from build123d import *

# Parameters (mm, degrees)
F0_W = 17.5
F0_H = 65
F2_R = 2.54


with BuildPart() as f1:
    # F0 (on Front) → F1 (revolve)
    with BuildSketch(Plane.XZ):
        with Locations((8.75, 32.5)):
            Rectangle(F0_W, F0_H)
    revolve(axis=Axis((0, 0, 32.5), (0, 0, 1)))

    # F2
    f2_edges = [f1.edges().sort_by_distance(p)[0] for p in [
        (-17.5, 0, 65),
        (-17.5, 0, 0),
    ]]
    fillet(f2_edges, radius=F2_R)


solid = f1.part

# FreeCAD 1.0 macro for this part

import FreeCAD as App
import Part
import Sketcher

V = App.Vector
Q = App.Units.Quantity


def edges_at(feature, points):
    """Names of the edges that pass closest to the given points."""
    edges = feature.Shape.Edges
    near = lambda p: min(range(len(edges)), key=lambda i: edges[i].distToShape(Part.Vertex(*p))[0])
    return sorted({f"Edge{near(p) + 1}" for p in points})


def add_polygon(sketch, points):
    """Adds a closed chain of lines whose ends are joined by coincident constraints."""
    first, n = sketch.GeometryCount, len(points)
    for a, b in zip(points, points[1:] + points[:1]):
        sketch.addGeometry(Part.LineSegment(App.Vector(*a, 0), App.Vector(*b, 0)), False)
    for i in range(n):
        sketch.addConstraint(Sketcher.Constraint("Coincident", first + i, 2, first + (i + 1) % n, 1))

doc = App.newDocument("Part")
body = doc.addObject("PartDesign::Body", "Body")

sketch1 = body.newObject("Sketcher::SketchObject", "Sketch")
sketch1.AttachmentSupport = (doc.getObject("XZ_Plane"), [""])
sketch1.MapMode = "FlatFace"
add_polygon(sketch1, [(0, 65), (0, 0), (18, 0), (18, 65)])
sketch1.addConstraint([
    Sketcher.Constraint("Vertical", 0),
    Sketcher.Constraint("Horizontal", 1),
    Sketcher.Constraint("Vertical", 2),
    Sketcher.Constraint("Horizontal", 3),
    Sketcher.Constraint("Coincident", 0, 2, -1, 1),
    Sketcher.Constraint("DistanceY", 0, 2, 0, 1, Q("65 mm")),
    Sketcher.Constraint("DistanceX", 1, 1, 1, 2, Q("17.5 mm")),
])
revolution = body.newObject("PartDesign::Revolution", "Revolution")
revolution.Profile = sketch1
revolution.ReferenceAxis = (sketch1, ["V_Axis"])
revolution.Angle = 360
doc.recompute()

fillet = body.newObject("PartDesign::Fillet", "Fillet")
fillet.Base = (revolution, edges_at(revolution, [(-17.5, 0, 65), (-17.5, 0, 0)]))
fillet.Radius = 2.54

doc.recompute()
